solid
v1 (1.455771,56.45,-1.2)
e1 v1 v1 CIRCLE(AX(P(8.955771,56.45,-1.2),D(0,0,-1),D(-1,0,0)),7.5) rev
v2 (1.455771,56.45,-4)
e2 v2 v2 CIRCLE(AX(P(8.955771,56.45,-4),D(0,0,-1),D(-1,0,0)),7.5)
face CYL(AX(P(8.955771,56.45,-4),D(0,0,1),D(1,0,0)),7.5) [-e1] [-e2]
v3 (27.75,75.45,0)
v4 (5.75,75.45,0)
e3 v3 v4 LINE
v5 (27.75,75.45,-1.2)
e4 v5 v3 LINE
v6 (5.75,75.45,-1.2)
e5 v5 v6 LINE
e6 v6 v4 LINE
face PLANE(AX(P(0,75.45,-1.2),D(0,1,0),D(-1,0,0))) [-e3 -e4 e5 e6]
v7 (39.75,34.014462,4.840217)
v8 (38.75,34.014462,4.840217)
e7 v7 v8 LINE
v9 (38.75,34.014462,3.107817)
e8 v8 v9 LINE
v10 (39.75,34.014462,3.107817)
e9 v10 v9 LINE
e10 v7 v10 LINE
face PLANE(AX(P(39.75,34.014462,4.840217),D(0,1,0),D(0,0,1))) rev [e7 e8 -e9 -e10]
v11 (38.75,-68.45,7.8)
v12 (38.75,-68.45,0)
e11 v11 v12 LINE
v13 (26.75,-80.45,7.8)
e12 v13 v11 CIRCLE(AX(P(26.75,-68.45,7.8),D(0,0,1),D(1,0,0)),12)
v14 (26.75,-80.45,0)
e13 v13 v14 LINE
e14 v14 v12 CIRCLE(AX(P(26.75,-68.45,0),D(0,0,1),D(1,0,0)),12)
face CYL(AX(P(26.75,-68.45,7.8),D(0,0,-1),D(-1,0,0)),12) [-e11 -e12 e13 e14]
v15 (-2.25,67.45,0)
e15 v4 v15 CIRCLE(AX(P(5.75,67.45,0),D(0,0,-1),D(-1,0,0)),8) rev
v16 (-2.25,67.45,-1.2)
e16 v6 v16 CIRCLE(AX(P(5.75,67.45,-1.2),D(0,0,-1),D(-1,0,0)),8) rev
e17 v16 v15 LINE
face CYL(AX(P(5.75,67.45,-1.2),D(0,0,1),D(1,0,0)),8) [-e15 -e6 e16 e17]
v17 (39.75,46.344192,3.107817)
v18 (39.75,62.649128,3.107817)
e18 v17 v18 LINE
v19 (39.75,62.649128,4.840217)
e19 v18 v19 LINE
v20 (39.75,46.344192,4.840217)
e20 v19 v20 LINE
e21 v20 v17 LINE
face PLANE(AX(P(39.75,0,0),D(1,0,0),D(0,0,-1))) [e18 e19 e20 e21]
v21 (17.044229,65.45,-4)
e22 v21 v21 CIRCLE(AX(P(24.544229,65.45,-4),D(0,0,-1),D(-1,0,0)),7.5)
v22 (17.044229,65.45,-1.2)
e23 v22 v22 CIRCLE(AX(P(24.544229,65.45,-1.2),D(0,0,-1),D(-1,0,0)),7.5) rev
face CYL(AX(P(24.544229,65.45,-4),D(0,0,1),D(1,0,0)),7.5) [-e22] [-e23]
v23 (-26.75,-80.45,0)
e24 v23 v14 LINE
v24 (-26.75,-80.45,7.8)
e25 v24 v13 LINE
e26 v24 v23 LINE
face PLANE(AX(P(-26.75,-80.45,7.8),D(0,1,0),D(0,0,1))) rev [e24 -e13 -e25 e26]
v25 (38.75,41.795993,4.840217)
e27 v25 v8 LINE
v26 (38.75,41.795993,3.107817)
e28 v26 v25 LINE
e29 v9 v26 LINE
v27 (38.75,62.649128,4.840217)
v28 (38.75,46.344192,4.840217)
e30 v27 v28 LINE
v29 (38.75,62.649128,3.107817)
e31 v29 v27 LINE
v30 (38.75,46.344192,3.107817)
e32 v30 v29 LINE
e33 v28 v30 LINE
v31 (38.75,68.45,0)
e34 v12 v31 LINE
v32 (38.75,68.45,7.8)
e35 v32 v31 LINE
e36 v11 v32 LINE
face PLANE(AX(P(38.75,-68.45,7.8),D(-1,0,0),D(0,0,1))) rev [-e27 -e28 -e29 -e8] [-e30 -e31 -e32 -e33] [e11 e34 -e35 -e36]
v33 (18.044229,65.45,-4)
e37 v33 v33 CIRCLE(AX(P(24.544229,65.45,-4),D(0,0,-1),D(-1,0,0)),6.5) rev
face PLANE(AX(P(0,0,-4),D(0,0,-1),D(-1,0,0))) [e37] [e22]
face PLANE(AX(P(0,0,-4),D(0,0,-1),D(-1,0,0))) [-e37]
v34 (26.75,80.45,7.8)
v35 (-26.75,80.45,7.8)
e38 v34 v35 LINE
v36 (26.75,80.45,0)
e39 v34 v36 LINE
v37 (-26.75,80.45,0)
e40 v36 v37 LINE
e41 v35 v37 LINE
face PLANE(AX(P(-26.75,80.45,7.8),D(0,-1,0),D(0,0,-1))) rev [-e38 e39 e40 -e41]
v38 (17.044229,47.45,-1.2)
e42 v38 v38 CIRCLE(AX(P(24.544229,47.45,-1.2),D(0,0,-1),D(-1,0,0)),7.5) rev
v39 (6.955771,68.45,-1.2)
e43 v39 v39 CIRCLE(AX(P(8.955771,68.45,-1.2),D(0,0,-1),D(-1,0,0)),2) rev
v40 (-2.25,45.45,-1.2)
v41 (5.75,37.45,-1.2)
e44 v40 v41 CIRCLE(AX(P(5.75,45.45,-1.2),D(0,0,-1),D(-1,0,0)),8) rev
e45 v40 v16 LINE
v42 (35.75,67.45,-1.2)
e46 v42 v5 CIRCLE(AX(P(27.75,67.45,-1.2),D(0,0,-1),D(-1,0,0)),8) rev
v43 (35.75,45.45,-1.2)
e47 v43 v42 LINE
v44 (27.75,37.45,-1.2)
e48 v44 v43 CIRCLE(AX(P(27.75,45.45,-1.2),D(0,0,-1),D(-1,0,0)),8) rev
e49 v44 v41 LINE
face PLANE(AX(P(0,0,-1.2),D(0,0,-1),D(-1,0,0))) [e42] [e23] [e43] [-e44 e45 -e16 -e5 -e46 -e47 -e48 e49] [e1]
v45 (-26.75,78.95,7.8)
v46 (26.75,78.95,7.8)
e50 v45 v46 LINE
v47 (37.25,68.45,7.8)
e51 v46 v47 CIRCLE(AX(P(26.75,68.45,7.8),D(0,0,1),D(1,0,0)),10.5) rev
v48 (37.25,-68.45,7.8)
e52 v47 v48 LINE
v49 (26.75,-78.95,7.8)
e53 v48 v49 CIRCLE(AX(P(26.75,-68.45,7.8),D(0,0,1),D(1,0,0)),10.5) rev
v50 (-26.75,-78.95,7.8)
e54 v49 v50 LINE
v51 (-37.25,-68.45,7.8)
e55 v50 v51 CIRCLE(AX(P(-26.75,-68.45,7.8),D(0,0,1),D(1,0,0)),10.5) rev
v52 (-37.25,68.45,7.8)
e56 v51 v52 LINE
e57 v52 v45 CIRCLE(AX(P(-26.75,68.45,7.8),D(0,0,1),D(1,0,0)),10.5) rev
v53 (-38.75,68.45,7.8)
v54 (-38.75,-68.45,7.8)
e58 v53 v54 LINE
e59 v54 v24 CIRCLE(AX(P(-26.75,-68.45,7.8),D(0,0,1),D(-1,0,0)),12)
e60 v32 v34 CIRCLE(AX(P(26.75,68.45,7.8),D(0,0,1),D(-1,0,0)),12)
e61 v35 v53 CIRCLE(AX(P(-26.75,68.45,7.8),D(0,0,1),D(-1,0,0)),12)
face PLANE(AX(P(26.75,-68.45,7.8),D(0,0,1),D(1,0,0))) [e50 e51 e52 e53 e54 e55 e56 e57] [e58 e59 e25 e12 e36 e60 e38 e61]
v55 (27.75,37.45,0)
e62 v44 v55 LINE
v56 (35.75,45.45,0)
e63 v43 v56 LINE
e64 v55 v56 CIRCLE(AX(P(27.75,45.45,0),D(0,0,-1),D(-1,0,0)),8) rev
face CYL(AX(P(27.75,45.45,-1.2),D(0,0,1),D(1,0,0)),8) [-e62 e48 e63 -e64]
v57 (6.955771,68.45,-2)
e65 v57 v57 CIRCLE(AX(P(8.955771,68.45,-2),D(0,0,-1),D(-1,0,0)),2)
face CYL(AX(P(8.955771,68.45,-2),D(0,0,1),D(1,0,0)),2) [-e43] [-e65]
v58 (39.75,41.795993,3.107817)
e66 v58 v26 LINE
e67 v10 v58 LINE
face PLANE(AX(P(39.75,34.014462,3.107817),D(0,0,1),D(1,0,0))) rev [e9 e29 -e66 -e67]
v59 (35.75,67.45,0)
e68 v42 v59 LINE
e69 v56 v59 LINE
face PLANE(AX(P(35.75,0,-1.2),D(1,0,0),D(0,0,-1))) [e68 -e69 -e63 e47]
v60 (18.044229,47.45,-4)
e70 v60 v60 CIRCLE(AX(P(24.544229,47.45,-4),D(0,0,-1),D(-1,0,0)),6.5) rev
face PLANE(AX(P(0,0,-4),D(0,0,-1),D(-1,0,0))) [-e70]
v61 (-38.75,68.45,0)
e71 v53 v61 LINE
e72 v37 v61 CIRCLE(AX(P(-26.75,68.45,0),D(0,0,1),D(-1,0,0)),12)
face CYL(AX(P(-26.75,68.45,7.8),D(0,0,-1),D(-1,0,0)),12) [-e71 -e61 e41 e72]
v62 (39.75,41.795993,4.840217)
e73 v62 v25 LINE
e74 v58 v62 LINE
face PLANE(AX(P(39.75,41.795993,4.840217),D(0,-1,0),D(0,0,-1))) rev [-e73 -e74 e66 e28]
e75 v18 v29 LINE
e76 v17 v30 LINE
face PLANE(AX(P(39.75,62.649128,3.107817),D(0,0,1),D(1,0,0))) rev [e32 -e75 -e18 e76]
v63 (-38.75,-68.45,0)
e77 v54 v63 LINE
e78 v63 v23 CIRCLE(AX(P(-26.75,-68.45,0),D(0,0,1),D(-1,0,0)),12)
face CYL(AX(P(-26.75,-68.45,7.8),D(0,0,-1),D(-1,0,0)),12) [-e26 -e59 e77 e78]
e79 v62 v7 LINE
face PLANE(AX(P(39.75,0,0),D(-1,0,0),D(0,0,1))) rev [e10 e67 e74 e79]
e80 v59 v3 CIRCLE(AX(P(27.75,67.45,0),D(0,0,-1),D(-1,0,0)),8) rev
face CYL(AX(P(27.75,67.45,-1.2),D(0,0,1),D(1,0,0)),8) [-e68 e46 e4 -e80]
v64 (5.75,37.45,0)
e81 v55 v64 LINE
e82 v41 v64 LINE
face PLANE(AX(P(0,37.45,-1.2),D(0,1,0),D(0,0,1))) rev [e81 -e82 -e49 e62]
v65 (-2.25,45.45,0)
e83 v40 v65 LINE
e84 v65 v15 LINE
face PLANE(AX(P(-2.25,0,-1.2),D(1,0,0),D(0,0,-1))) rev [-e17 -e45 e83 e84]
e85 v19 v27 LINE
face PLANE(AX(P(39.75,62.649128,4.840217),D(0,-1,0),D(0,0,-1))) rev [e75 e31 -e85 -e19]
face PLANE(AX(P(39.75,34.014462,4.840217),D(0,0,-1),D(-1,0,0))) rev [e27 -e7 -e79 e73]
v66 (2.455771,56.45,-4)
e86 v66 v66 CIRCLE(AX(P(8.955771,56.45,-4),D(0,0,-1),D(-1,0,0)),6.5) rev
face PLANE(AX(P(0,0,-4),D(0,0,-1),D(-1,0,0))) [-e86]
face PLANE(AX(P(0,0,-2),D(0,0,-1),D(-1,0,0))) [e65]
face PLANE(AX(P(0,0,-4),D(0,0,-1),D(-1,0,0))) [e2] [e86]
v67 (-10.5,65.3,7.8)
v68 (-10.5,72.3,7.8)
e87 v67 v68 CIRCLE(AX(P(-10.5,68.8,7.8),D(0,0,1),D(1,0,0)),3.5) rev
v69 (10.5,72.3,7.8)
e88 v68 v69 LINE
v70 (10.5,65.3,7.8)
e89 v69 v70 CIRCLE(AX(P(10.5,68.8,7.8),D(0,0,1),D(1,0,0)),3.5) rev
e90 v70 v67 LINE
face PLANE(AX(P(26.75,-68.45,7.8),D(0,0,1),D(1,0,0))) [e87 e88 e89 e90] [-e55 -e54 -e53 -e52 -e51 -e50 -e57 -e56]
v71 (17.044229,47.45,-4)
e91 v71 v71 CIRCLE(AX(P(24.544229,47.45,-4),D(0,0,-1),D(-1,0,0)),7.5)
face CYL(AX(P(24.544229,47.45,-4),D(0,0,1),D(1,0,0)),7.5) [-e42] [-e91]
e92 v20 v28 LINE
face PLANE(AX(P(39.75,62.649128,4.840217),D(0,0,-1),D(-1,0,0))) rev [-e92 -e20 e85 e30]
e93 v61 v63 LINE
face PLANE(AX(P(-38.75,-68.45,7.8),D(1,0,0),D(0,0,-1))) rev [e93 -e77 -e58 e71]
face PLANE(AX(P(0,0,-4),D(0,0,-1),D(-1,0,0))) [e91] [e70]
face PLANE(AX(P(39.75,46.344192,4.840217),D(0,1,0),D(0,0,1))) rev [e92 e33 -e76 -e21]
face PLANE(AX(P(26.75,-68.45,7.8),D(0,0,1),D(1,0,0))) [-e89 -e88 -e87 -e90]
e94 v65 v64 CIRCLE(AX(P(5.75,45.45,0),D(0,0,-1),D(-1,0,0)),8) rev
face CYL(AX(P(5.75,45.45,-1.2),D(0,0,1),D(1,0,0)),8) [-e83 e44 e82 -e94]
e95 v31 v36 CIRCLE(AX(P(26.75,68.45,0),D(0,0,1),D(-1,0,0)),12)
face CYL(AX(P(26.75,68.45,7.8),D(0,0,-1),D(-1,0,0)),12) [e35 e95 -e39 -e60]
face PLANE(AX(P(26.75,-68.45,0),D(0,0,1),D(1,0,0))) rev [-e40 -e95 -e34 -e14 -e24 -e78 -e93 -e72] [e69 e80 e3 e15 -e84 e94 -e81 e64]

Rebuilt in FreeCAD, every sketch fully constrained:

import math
import FreeCAD as App
import Part
import Sketcher
from FreeCAD import Vector
Q = App.Units.Quantity

doc = App.newDocument("Part")
body = doc.addObject("PartDesign::Body", "Body")

# Sketch on XY plane
sketch1 = doc.addObject("Sketcher::SketchObject", "Sketch")
body.addObject(sketch1)
sketch1.AttachmentSupport = (doc.XY_Plane, [""])
sketch1.MapMode = "FlatFace"
sketch1.addGeometry([
    Part.LineSegment(Vector(-27, -80, 0), Vector(27, -80, 0)),  # 0
    Part.ArcOfCircle(Part.Circle(Vector(27, -68, 0), Vector(0, 0, 1), 12), math.radians(-90), math.radians(0)),  # 1
    Part.LineSegment(Vector(39, -68, 0), Vector(39, 68, 0)),  # 2
    Part.ArcOfCircle(Part.Circle(Vector(27, 68, 0), Vector(0, 0, 1), 12), math.radians(0), math.radians(90)),  # 3
    Part.LineSegment(Vector(27, 80, 0), Vector(-27, 80, 0)),  # 4
    Part.ArcOfCircle(Part.Circle(Vector(-27, 68, 0), Vector(0, 0, 1), 12), math.radians(90), math.radians(180)),  # 5
    Part.LineSegment(Vector(-39, 68, 0), Vector(-39, -68, 0)),  # 6
    Part.ArcOfCircle(Part.Circle(Vector(-27, -68, 0), Vector(0, 0, 1), 12), math.radians(-180), math.radians(-90)),  # 7
], False)
sketch1.addConstraint([
    Sketcher.Constraint("Tangent", 0, 2, 1, 1),
    Sketcher.Constraint("Tangent", 1, 2, 2, 1),
    Sketcher.Constraint("Tangent", 2, 2, 3, 1),
    Sketcher.Constraint("Tangent", 3, 2, 4, 1),
    Sketcher.Constraint("Tangent", 4, 2, 5, 1),
    Sketcher.Constraint("Tangent", 5, 2, 6, 1),
    Sketcher.Constraint("Tangent", 6, 2, 7, 1),
    Sketcher.Constraint("Tangent", 7, 2, 0, 1),
    Sketcher.Constraint("Horizontal", 0),
    Sketcher.Constraint("Vertical", 2),
    Sketcher.Constraint("Horizontal", 4),
    Sketcher.Constraint("Vertical", 6),
    Sketcher.Constraint("Equal", 1, 3),
    Sketcher.Constraint("Equal", 3, 5),
    Sketcher.Constraint("Equal", 5, 7),
    Sketcher.Constraint("Symmetric", 1, 3, 5, 3, -1, 1),
    Sketcher.Constraint("Radius", 1, Q("12 mm")),
    Sketcher.Constraint("DistanceX", 0, 1, 0, 2, Q("53.5 mm")),
    Sketcher.Constraint("DistanceY", 2, 1, 2, 2, Q("136.9 mm")),
])
pad1 = doc.addObject("PartDesign::Pad", "Pad")
body.addObject(pad1)
pad1.Profile = sketch1
pad1.Length = 7.8

# Sketch on XY plane
sketch2 = doc.addObject("Sketcher::SketchObject", "Sketch001")
body.addObject(sketch2)
sketch2.AttachmentSupport = (doc.XY_Plane, [""])
sketch2.MapMode = "FlatFace"
sketch2.addGeometry([
    Part.LineSegment(Vector(28, 37, 0), Vector(6, 37, 0)),  # 0
    Part.ArcOfCircle(Part.Circle(Vector(6, 45, 0), Vector(0, 0, 1), 8), math.radians(-180), math.radians(-90)),  # 1
    Part.LineSegment(Vector(-2, 45, 0), Vector(-2, 67, 0)),  # 2
    Part.ArcOfCircle(Part.Circle(Vector(6, 67, 0), Vector(0, 0, 1), 8), math.radians(90), math.radians(180)),  # 3
    Part.LineSegment(Vector(6, 75, 0), Vector(28, 75, 0)),  # 4
    Part.ArcOfCircle(Part.Circle(Vector(28, 67, 0), Vector(0, 0, 1), 8), math.radians(0), math.radians(90)),  # 5
    Part.LineSegment(Vector(36, 67, 0), Vector(36, 45, 0)),  # 6
    Part.ArcOfCircle(Part.Circle(Vector(28, 45, 0), Vector(0, 0, 1), 8), math.radians(-90), math.radians(0)),  # 7
], False)
sketch2.addConstraint([
    Sketcher.Constraint("Tangent", 0, 2, 1, 2),
    Sketcher.Constraint("Tangent", 1, 1, 2, 1),
    Sketcher.Constraint("Tangent", 2, 2, 3, 2),
    Sketcher.Constraint("Tangent", 3, 1, 4, 1),
    Sketcher.Constraint("Tangent", 4, 2, 5, 2),
    Sketcher.Constraint("Tangent", 5, 1, 6, 1),
    Sketcher.Constraint("Tangent", 6, 2, 7, 2),
    Sketcher.Constraint("Tangent", 7, 1, 0, 1),
    Sketcher.Constraint("Horizontal", 0),
    Sketcher.Constraint("Vertical", 2),
    Sketcher.Constraint("Horizontal", 4),
    Sketcher.Constraint("Vertical", 6),
    Sketcher.Constraint("Equal", 1, 3),
    Sketcher.Constraint("Equal", 3, 5),
    Sketcher.Constraint("Equal", 5, 7),
    Sketcher.Constraint("Equal", 4, 2),
    Sketcher.Constraint("Radius", 1, Q("8 mm")),
    Sketcher.Constraint("DistanceX", 0, 2, 0, 1, Q("22 mm")),
    Sketcher.Constraint("DistanceX", -1, 1, 1, 3, Q("5.75 mm")),
    Sketcher.Constraint("DistanceY", -1, 1, 1, 3, Q("45.45 mm")),
])
pad2 = doc.addObject("PartDesign::Pad", "Pad001")
body.addObject(pad2)
pad2.Profile = sketch2
pad2.Length = 1.2
pad2.Reversed = True

# Sketch on XY plane
sketch3 = doc.addObject("Sketcher::SketchObject", "Sketch002")
body.addObject(sketch3)
sketch3.AttachmentSupport = (doc.XY_Plane, [""])
sketch3.MapMode = "FlatFace"
sketch3.addGeometry([
    Part.Circle(Vector(25, 65, 0), Vector(0, 0, 1), 8),
    Part.Circle(Vector(9, 56, 0), Vector(0, 0, 1), 8),
    Part.Circle(Vector(25, 47, 0), Vector(0, 0, 1), 8),
], False)
sketch3.addConstraint([
    Sketcher.Constraint("Equal", 0, 1),
    Sketcher.Constraint("Equal", 1, 2),
    Sketcher.Constraint("Vertical", 0, 3, 2, 3),
    Sketcher.Constraint("Diameter", 0, Q("15 mm")),
    Sketcher.Constraint("DistanceY", 1, 3, 0, 3, Q("9 mm")),
    Sketcher.Constraint("DistanceY", 2, 3, 1, 3, Q("9 mm")),
    Sketcher.Constraint("DistanceY", -1, 1, 0, 3, Q("65.45 mm")),
    Sketcher.Constraint("DistanceX", -1, 1, 0, 3, Q("24.544229 mm")),
    Sketcher.Constraint("DistanceX", -1, 1, 1, 3, Q("8.955771 mm")),
])
pad3 = doc.addObject("PartDesign::Pad", "Pad002")
body.addObject(pad3)
pad3.Profile = sketch3
pad3.Length = 4
pad3.Reversed = True

# Sketch on XY plane
sketch4 = doc.addObject("Sketcher::SketchObject", "Sketch003")
body.addObject(sketch4)
sketch4.AttachmentSupport = (doc.XY_Plane, [""])
sketch4.MapMode = "FlatFace"
sketch4.addGeometry(Part.Circle(Vector(9, 68.5, 0), Vector(0, 0, 1), 2), False)
sketch4.addConstraint([
    Sketcher.Constraint("Diameter", 0, Q("4 mm")),
    Sketcher.Constraint("DistanceY", -1, 1, 0, 3, Q("68.45 mm")),
    Sketcher.Constraint("DistanceX", -1, 1, 0, 3, Q("8.955771 mm")),
])
pad4 = doc.addObject("PartDesign::Pad", "Pad003")
body.addObject(pad4)
pad4.Profile = sketch4
pad4.Length = 2
pad4.Reversed = True

# Sketch on YZ plane
sketch5 = doc.addObject("Sketcher::SketchObject", "Sketch004")
body.addObject(sketch5)
sketch5.AttachmentSupport = (doc.YZ_Plane, [""])
sketch5.MapMode = "FlatFace"
sketch5.AttachmentOffset = App.Placement(Vector(0, 0, 38.75), App.Rotation())
sketch5.addGeometry([
    Part.LineSegment(Vector(62.6, 4.8, 0), Vector(46.3, 4.8, 0)),  # 0
    Part.LineSegment(Vector(46.3, 4.8, 0), Vector(46.3, 3.1, 0)),  # 1
    Part.LineSegment(Vector(46.3, 3.1, 0), Vector(62.6, 3.1, 0)),  # 2
    Part.LineSegment(Vector(62.6, 3.1, 0), Vector(62.6, 4.8, 0)),  # 3
    Part.LineSegment(Vector(41.8, 4.8, 0), Vector(34, 4.8, 0)),  # 4
    Part.LineSegment(Vector(34, 4.8, 0), Vector(34, 3.1, 0)),  # 5
    Part.LineSegment(Vector(34, 3.1, 0), Vector(41.8, 3.1, 0)),  # 6
    Part.LineSegment(Vector(41.8, 3.1, 0), Vector(41.8, 4.8, 0)),  # 7
], False)
sketch5.addConstraint([
    Sketcher.Constraint("Coincident", 0, 2, 1, 1),
    Sketcher.Constraint("Coincident", 1, 2, 2, 1),
    Sketcher.Constraint("Coincident", 2, 2, 3, 1),
    Sketcher.Constraint("Coincident", 3, 2, 0, 1),
    Sketcher.Constraint("Coincident", 4, 2, 5, 1),
    Sketcher.Constraint("Coincident", 5, 2, 6, 1),
    Sketcher.Constraint("Coincident", 6, 2, 7, 1),
    Sketcher.Constraint("Coincident", 7, 2, 4, 1),
    Sketcher.Constraint("Horizontal", 0),
    Sketcher.Constraint("Vertical", 1),
    Sketcher.Constraint("Horizontal", 2),
    Sketcher.Constraint("Vertical", 3),
    Sketcher.Constraint("Horizontal", 4),
    Sketcher.Constraint("Vertical", 5),
    Sketcher.Constraint("Horizontal", 6),
    Sketcher.Constraint("Vertical", 7),
    Sketcher.Constraint("Horizontal", 3, 2, 4, 2),
    Sketcher.Constraint("Horizontal", 2, 2, 5, 2),
    Sketcher.Constraint("DistanceY", 1, 2, 1, 1, Q("1.732399 mm")),
    Sketcher.Constraint("DistanceX", 4, 2, 4, 1, Q("7.781531 mm")),
    Sketcher.Constraint("DistanceX", 6, 2, 1, 2, Q("4.548198 mm")),
    Sketcher.Constraint("DistanceX", 0, 2, 0, 1, Q("16.304936 mm")),
    Sketcher.Constraint("DistanceX", -1, 1, 0, 2, Q("46.344192 mm")),
    Sketcher.Constraint("DistanceY", -1, 1, 0, 2, Q("4.840217 mm")),
])
pad5 = doc.addObject("PartDesign::Pad", "Pad004")
body.addObject(pad5)
pad5.Profile = sketch5
pad5.Length = 1

# Sketch on YZ plane
sketch6 = doc.addObject("Sketcher::SketchObject", "Sketch005")
body.addObject(sketch6)
sketch6.AttachmentSupport = (doc.YZ_Plane, [""])
sketch6.MapMode = "FlatFace"
sketch6.AttachmentOffset = App.Placement(Vector(0, 0, 38.75), App.Rotation())
sketch6.addGeometry([
    Part.LineSegment(Vector(-9, 7, 0), Vector(-26, 7, 0)),
    Part.LineSegment(Vector(-26, 7, 0), Vector(-26, 2, 0)),
    Part.LineSegment(Vector(-26, 2, 0), Vector(-9, 2, 0)),
    Part.LineSegment(Vector(-9, 2, 0), Vector(-9, 7, 0)),
], False)
sketch6.addConstraint([
    Sketcher.Constraint("Coincident", 0, 2, 1, 1),
    Sketcher.Constraint("Coincident", 1, 2, 2, 1),
    Sketcher.Constraint("Coincident", 2, 2, 3, 1),
    Sketcher.Constraint("Coincident", 3, 2, 0, 1),
    Sketcher.Constraint("Horizontal", 0),
    Sketcher.Constraint("Vertical", 1),
    Sketcher.Constraint("Horizontal", 2),
    Sketcher.Constraint("Vertical", 3),
    Sketcher.Constraint("DistanceX", 0, 2, 0, 1, Q("16.681715 mm")),
    Sketcher.Constraint("DistanceY", 1, 2, 1, 1, Q("5.132835 mm")),
    Sketcher.Constraint("DistanceX", 0, 2, -1, 1, Q("25.801471 mm")),
    Sketcher.Constraint("DistanceY", -1, 1, 0, 2, Q("6.828761 mm")),
])
pad6 = doc.addObject("PartDesign::Pad", "Pad005")
body.addObject(pad6)
pad6.Profile = sketch6
pad6.Length = 1
pad6.Reversed = True

doc.recompute()
